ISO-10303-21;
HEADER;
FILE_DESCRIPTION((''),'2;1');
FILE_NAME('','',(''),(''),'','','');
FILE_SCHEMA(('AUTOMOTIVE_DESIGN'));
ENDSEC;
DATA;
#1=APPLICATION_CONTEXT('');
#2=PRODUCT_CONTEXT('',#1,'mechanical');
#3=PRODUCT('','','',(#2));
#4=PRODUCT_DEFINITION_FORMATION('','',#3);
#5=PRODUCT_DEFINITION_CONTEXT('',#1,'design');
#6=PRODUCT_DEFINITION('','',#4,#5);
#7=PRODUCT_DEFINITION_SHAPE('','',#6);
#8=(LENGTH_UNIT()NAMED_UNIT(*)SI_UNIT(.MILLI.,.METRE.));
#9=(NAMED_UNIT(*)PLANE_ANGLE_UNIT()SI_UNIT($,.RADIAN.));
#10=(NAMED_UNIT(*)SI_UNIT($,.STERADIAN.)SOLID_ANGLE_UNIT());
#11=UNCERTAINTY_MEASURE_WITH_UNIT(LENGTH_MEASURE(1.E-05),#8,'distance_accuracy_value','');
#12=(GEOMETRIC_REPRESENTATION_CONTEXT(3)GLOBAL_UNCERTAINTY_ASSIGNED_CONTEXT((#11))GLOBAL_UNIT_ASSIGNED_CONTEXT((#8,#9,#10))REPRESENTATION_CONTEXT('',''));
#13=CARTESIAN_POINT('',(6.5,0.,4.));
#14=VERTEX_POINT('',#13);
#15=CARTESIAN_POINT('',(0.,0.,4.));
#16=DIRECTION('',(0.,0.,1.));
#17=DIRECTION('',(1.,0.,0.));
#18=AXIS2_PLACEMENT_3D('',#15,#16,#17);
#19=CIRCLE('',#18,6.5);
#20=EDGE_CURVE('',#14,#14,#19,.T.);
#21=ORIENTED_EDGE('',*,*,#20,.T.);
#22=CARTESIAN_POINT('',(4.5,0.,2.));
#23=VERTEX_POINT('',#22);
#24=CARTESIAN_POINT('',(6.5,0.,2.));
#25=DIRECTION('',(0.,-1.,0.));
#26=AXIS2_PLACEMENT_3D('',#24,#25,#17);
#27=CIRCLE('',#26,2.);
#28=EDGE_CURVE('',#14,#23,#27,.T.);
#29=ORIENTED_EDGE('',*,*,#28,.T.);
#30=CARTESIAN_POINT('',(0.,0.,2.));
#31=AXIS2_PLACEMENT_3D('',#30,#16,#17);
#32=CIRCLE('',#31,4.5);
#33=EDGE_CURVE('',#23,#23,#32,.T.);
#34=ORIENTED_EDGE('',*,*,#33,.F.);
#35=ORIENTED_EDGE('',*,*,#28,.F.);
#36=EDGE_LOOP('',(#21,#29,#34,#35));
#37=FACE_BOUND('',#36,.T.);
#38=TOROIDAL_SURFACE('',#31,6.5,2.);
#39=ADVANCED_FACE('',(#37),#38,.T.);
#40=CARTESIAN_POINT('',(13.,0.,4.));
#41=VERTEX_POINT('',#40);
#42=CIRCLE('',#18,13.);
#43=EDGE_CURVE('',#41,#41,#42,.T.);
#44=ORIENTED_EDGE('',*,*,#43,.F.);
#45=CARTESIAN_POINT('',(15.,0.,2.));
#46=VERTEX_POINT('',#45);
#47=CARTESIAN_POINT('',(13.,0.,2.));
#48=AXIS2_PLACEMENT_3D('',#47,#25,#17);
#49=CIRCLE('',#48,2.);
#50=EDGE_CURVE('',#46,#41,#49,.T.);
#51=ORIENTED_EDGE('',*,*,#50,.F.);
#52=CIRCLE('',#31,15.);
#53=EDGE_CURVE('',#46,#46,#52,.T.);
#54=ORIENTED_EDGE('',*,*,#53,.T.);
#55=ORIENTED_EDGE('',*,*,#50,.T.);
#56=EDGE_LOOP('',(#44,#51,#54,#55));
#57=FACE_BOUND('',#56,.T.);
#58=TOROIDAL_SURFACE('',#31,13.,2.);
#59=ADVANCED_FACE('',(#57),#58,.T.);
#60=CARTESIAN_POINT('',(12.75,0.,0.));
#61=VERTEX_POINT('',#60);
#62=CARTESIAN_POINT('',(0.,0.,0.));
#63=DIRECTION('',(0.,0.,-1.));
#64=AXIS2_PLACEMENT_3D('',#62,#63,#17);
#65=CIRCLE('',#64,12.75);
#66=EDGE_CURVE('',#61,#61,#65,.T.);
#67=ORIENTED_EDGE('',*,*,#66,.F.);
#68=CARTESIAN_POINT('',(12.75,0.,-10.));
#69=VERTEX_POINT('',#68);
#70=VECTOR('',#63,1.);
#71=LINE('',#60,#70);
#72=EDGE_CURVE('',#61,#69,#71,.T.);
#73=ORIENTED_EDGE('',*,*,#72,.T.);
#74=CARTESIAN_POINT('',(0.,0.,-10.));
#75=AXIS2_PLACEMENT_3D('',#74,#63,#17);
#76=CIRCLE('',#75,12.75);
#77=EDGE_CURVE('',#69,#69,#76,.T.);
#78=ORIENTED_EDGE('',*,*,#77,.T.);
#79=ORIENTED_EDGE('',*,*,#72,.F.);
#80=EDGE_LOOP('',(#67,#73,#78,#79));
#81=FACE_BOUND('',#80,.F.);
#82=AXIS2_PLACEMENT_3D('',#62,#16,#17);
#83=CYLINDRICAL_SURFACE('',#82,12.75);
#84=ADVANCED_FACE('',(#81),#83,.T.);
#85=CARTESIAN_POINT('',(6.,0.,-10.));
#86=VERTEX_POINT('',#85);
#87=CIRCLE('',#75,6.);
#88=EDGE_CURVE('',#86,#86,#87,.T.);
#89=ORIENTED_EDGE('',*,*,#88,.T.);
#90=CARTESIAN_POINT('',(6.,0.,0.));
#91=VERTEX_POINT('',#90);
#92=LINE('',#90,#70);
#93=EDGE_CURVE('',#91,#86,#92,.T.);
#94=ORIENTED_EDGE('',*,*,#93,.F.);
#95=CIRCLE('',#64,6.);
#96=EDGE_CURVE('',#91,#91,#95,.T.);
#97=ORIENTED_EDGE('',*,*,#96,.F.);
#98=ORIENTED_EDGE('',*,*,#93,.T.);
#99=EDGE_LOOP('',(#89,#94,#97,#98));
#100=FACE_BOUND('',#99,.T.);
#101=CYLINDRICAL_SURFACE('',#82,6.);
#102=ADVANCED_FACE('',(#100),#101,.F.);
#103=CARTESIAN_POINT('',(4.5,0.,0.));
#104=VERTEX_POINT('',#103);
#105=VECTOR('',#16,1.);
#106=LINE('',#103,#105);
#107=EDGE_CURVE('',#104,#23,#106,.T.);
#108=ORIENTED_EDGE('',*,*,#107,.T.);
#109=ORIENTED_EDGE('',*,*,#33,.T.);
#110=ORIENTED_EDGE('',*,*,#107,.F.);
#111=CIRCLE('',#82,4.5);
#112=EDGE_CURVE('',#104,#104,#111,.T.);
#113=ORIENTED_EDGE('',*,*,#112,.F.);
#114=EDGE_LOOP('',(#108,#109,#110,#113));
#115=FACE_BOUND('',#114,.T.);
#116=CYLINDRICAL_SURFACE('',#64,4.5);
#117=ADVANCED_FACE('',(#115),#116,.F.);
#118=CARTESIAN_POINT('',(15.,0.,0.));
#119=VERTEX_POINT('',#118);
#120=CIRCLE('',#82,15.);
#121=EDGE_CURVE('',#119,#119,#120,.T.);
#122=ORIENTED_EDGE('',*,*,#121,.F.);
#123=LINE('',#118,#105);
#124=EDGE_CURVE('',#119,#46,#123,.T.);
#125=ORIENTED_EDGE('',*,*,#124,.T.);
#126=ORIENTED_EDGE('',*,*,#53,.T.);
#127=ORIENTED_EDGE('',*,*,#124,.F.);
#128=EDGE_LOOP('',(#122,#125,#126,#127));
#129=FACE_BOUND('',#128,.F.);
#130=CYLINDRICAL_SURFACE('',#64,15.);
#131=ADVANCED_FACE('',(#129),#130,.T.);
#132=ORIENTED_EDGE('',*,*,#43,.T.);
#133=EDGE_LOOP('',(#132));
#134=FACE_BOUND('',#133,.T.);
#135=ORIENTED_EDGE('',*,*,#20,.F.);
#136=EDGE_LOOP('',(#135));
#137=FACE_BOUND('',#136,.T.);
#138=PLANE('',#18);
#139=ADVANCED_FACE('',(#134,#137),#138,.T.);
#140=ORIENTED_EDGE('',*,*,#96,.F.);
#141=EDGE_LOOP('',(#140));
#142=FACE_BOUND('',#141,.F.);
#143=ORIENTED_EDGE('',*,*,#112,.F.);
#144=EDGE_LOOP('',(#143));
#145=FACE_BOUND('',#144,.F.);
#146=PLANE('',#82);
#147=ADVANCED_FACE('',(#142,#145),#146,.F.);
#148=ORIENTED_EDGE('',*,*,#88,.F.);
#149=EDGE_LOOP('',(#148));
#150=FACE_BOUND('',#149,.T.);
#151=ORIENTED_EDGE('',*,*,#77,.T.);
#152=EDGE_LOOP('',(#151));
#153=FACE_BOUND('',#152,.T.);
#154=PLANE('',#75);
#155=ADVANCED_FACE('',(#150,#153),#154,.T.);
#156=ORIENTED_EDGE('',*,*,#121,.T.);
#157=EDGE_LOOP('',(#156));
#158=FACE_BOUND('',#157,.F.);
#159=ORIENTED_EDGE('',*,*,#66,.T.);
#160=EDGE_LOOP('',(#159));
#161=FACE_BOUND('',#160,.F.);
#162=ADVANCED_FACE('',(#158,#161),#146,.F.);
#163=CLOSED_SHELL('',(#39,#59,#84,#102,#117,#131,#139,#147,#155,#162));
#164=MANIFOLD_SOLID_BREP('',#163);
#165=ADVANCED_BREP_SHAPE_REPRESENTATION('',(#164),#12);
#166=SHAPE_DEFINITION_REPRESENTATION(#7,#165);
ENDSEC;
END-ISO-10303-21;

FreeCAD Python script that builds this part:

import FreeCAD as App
import Part
import Sketcher
from FreeCAD import Vector
Q = App.Units.Quantity


def edges_at(feature, points):
    """Names of the edges that pass closest to the given points."""
    edges = feature.Shape.Edges
    near = lambda p: min(range(len(edges)), key=lambda i: edges[i].distToShape(Part.Vertex(*p))[0])
    return sorted({f"Edge{near(p) + 1}" for p in points})

doc = App.newDocument("Part")
body = doc.addObject("PartDesign::Body", "Body")

sketch1 = doc.addObject("Sketcher::SketchObject", "Sketch")
body.addObject(sketch1)
sketch1.AttachmentSupport = (doc.XY_Plane, [""])
sketch1.MapMode = "FlatFace"
sketch1.addGeometry(Part.Circle(Vector(0, 0, 0), Vector(0, 0, 1), 15), False)
sketch1.addGeometry(Part.Circle(Vector(0, 0, 0), Vector(0, 0, 1), 4.5), False)
sketch1.addConstraint(Sketcher.Constraint("Coincident", 0, 3, -1, 1))
sketch1.addConstraint(Sketcher.Constraint("Coincident", 1, 3, -1, 1))
sketch1.addConstraint(Sketcher.Constraint("Diameter", 0, Q("30 mm")))
sketch1.addConstraint(Sketcher.Constraint("Diameter", 1, Q("9 mm")))
pad1 = doc.addObject("PartDesign::Pad", "Pad")
body.addObject(pad1)
pad1.Profile = sketch1
pad1.Length = 4

sketch2 = doc.addObject("Sketcher::SketchObject", "Sketch001")
body.addObject(sketch2)
sketch2.AttachmentSupport = (doc.XY_Plane, [""])
sketch2.MapMode = "FlatFace"
sketch2.addGeometry(Part.Circle(Vector(0, 0, 0), Vector(0, 0, 1), 13), False)
sketch2.addGeometry(Part.Circle(Vector(0, 0, 0), Vector(0, 0, 1), 6), False)
sketch2.addConstraint(Sketcher.Constraint("Coincident", 0, 3, -1, 1))
sketch2.addConstraint(Sketcher.Constraint("Coincident", 1, 3, -1, 1))
sketch2.addConstraint(Sketcher.Constraint("Diameter", 1, Q("12 mm")))
sketch2.addConstraint(Sketcher.Constraint("Diameter", 0, Q("25.5 mm")))
pad2 = doc.addObject("PartDesign::Pad", "Pad001")
body.addObject(pad2)
pad2.Profile = sketch2
pad2.Length = 10
pad2.Reversed = True
doc.recompute()

fillet = doc.addObject("PartDesign::Fillet", "Fillet")
body.addObject(fillet)
fillet.Base = (pad2, edges_at(pad2, [(-15, 0, 4), (-4.5, 0, 4)]))
fillet.Radius = 2

doc.recompute()
